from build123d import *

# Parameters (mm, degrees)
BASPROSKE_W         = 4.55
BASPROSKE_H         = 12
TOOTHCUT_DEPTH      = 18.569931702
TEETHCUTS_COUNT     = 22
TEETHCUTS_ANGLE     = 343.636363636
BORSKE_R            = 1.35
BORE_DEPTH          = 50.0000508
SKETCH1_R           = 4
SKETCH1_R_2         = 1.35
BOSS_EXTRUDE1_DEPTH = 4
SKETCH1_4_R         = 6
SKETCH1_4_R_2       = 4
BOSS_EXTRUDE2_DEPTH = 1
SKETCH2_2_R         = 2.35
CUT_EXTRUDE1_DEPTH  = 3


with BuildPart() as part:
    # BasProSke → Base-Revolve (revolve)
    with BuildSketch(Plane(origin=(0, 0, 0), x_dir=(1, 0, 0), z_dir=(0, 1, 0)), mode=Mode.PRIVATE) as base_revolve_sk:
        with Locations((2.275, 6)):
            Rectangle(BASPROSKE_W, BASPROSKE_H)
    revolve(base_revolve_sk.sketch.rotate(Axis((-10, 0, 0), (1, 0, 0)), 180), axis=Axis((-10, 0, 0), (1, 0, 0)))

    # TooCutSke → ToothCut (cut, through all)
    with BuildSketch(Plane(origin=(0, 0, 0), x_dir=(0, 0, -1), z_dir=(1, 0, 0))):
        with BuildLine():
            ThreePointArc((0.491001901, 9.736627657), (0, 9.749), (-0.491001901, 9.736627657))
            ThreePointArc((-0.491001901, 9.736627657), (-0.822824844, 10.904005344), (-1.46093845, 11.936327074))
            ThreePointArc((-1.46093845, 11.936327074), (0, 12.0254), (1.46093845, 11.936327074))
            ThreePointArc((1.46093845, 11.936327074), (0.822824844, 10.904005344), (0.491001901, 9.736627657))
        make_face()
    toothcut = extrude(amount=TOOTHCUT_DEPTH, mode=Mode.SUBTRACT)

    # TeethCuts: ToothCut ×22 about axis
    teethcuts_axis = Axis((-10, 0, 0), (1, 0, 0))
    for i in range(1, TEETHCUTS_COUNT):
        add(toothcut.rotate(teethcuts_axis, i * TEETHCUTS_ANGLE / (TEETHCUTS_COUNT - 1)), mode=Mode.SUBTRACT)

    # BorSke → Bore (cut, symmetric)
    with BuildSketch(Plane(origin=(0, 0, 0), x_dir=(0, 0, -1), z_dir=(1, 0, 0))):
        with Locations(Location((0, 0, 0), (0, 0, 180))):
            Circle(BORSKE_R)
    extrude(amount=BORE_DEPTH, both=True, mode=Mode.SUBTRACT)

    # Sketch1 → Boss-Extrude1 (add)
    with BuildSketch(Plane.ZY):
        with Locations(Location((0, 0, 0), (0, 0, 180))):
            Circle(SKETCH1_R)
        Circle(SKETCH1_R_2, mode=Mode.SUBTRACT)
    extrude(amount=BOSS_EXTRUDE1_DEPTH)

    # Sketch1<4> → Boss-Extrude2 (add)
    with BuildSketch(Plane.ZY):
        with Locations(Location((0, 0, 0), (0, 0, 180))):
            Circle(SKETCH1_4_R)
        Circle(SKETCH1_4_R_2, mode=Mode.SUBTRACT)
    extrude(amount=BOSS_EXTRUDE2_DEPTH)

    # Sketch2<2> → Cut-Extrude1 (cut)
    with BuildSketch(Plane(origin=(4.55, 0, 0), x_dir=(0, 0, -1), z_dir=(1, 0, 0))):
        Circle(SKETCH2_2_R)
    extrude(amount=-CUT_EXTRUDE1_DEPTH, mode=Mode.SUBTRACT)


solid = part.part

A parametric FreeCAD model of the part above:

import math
import FreeCAD as App
import Part
import Sketcher


def add_polygon(sketch, points):
    """Adds a closed chain of lines whose ends are joined by coincident constraints."""
    first, n = sketch.GeometryCount, len(points)
    for a, b in zip(points, points[1:] + points[:1]):
        sketch.addGeometry(Part.LineSegment(App.Vector(*a, 0), App.Vector(*b, 0)), False)
    for i in range(n):
        sketch.addConstraint(Sketcher.Constraint("Coincident", first + i, 2, first + (i + 1) % n, 1))

doc = App.newDocument("Part")
body = doc.addObject("PartDesign::Body", "Body")

# Sketch on XZ plane
sketch1 = doc.addObject("Sketcher::SketchObject", "Sketch")
body.addObject(sketch1)
sketch1.AttachmentSupport = (doc.XZ_Plane, [""])
sketch1.MapMode = "FlatFace"
add_polygon(sketch1, [(0, -12), (0, 0), (4.5, 0), (4.5, -12)])  # lines 0-3
sketch1.addConstraint(Sketcher.Constraint("Vertical", 0))
sketch1.addConstraint(Sketcher.Constraint("Horizontal", 1))
sketch1.addConstraint(Sketcher.Constraint("Vertical", 2))
sketch1.addConstraint(Sketcher.Constraint("Horizontal", 3))
sketch1.addConstraint(Sketcher.Constraint("Coincident", 0, 2, -1, 1))
sketch1.addConstraint(Sketcher.Constraint("DistanceY", 0, 1, 0, 2, 12.0))
sketch1.addConstraint(Sketcher.Constraint("DistanceX", 1, 1, 1, 2, 4.55))
revolution = doc.addObject("PartDesign::Revolution", "Revolution")
body.addObject(revolution)
revolution.Profile = sketch1
revolution.ReferenceAxis = (sketch1, ["H_Axis"])
revolution.Angle = 360

# Sketch on YZ plane
sketch2 = doc.addObject("Sketcher::SketchObject", "Sketch001")
body.addObject(sketch2)
sketch2.AttachmentSupport = (doc.YZ_Plane, [""])
sketch2.MapMode = "FlatFace"
sketch2.addGeometry(Part.ArcOfCircle(Part.Circle(App.Vector(0, 0, 0), App.Vector(0, 0, 1), 9.7), math.radians(-2.89), math.radians(2.89)), False)
sketch2.addGeometry(Part.ArcOfCircle(Part.Circle(App.Vector(9.1, -4.8, 0), App.Vector(0, 0, 1), 4.4), math.radians(50), math.radians(82)), False)
sketch2.addGeometry(Part.ArcOfCircle(Part.Circle(App.Vector(0, 0, 0), App.Vector(0, 0, 1), 12), math.radians(-6.98), math.radians(6.98)), False)
sketch2.addGeometry(Part.ArcOfCircle(Part.Circle(App.Vector(9.1, 4.8, 0), App.Vector(0, 0, 1), 4.4), math.radians(-82), math.radians(-50)), False)
sketch2.addConstraint(Sketcher.Constraint("Coincident", 0, 1, 1, 2))
sketch2.addConstraint(Sketcher.Constraint("Coincident", 1, 1, 2, 1))
sketch2.addConstraint(Sketcher.Constraint("Coincident", 2, 2, 3, 2))
sketch2.addConstraint(Sketcher.Constraint("Coincident", 3, 1, 0, 2))
sketch2.addConstraint(Sketcher.Constraint("Coincident", 0, 3, -1, 1))
sketch2.addConstraint(Sketcher.Constraint("Coincident", 2, 3, -1, 1))
sketch2.addConstraint(Sketcher.Constraint("Equal", 1, 3))
sketch2.addConstraint(Sketcher.Constraint("Symmetric", 1, 3, 3, 3, -1))
sketch2.addConstraint(Sketcher.Constraint("Radius", 1, 4.4))
sketch2.addConstraint(Sketcher.Constraint("Radius", 0, 9.749))
sketch2.addConstraint(Sketcher.Constraint("Radius", 2, 12.0254))
sketch2.addConstraint(Sketcher.Constraint("DistanceY", 0, 1, -1, 1, 0.491002))
sketch2.addConstraint(Sketcher.Constraint("DistanceX", 0, 1, 1, 1, 2.199699))
pocket1 = doc.addObject("PartDesign::Pocket", "Pocket")
body.addObject(pocket1)
pocket1.Profile = sketch2
pocket1.Type = "ThroughAll"
pocket1.Reversed = True
doc.recompute()

polarpattern = doc.addObject("PartDesign::PolarPattern", "PolarPattern")
body.addObject(polarpattern)
polarpattern.Originals = [pocket1]
polarpattern.Axis = (doc.X_Axis, [""])
polarpattern.Angle = 360
polarpattern.Occurrences = 22
body.Tip = polarpattern

# Sketch on YZ plane
sketch3 = doc.addObject("Sketcher::SketchObject", "Sketch002")
body.addObject(sketch3)
sketch3.AttachmentSupport = (doc.YZ_Plane, [""])
sketch3.MapMode = "FlatFace"
sketch3.addGeometry(Part.Circle(App.Vector(0, 0, 0), App.Vector(0, 0, 1), 1.4), False)
sketch3.addConstraint(Sketcher.Constraint("Coincident", 0, 3, -1, 1))
sketch3.addConstraint(Sketcher.Constraint("Diameter", 0, 2.7))
pocket2 = doc.addObject("PartDesign::Pocket", "Pocket001")
body.addObject(pocket2)
pocket2.Profile = sketch3
pocket2.Length = 100.000102
pocket2.Midplane = True

# Sketch on YZ plane
sketch4 = doc.addObject("Sketcher::SketchObject", "Sketch003")
body.addObject(sketch4)
sketch4.AttachmentSupport = (doc.YZ_Plane, [""])
sketch4.MapMode = "FlatFace"
sketch4.addGeometry(Part.Circle(App.Vector(0, 0, 0), App.Vector(0, 0, 1), 4), False)
sketch4.addGeometry(Part.Circle(App.Vector(0, 0, 0), App.Vector(0, 0, 1), 1.4), False)
sketch4.addConstraint(Sketcher.Constraint("Coincident", 0, 3, -1, 1))
sketch4.addConstraint(Sketcher.Constraint("Coincident", 1, 3, -1, 1))
sketch4.addConstraint(Sketcher.Constraint("Diameter", 0, 8.0))
sketch4.addConstraint(Sketcher.Constraint("Diameter", 1, 2.7))
pad1 = doc.addObject("PartDesign::Pad", "Pad")
body.addObject(pad1)
pad1.Profile = sketch4
pad1.Length = 4
pad1.Reversed = True

# Sketch on YZ plane
sketch5 = doc.addObject("Sketcher::SketchObject", "Sketch004")
body.addObject(sketch5)
sketch5.AttachmentSupport = (doc.YZ_Plane, [""])
sketch5.MapMode = "FlatFace"
sketch5.addGeometry(Part.Circle(App.Vector(0, 0, 0), App.Vector(0, 0, 1), 6), False)
sketch5.addGeometry(Part.Circle(App.Vector(0, 0, 0), App.Vector(0, 0, 1), 4), False)
sketch5.addConstraint(Sketcher.Constraint("Coincident", 0, 3, -1, 1))
sketch5.addConstraint(Sketcher.Constraint("Coincident", 1, 3, -1, 1))
sketch5.addConstraint(Sketcher.Constraint("Diameter", 0, 12.0))
sketch5.addConstraint(Sketcher.Constraint("Diameter", 1, 8.0))
pad2 = doc.addObject("PartDesign::Pad", "Pad001")
body.addObject(pad2)
pad2.Profile = sketch5
pad2.Length = 1
pad2.Reversed = True

# Sketch on YZ plane
sketch6 = doc.addObject("Sketcher::SketchObject", "Sketch005")
body.addObject(sketch6)
sketch6.AttachmentSupport = (doc.YZ_Plane, [""])
sketch6.MapMode = "FlatFace"
sketch6.AttachmentOffset = App.Placement(App.Vector(0, 0, 4.55), App.Rotation())
sketch6.addGeometry(Part.Circle(App.Vector(0, 0, 0), App.Vector(0, 0, 1), 2.4), False)
sketch6.addConstraint(Sketcher.Constraint("Coincident", 0, 3, -1, 1))
sketch6.addConstraint(Sketcher.Constraint("Diameter", 0, 4.7))
pocket3 = doc.addObject("PartDesign::Pocket", "Pocket002")
body.addObject(pocket3)
pocket3.Profile = sketch6
pocket3.Length = 3

doc.recompute()
